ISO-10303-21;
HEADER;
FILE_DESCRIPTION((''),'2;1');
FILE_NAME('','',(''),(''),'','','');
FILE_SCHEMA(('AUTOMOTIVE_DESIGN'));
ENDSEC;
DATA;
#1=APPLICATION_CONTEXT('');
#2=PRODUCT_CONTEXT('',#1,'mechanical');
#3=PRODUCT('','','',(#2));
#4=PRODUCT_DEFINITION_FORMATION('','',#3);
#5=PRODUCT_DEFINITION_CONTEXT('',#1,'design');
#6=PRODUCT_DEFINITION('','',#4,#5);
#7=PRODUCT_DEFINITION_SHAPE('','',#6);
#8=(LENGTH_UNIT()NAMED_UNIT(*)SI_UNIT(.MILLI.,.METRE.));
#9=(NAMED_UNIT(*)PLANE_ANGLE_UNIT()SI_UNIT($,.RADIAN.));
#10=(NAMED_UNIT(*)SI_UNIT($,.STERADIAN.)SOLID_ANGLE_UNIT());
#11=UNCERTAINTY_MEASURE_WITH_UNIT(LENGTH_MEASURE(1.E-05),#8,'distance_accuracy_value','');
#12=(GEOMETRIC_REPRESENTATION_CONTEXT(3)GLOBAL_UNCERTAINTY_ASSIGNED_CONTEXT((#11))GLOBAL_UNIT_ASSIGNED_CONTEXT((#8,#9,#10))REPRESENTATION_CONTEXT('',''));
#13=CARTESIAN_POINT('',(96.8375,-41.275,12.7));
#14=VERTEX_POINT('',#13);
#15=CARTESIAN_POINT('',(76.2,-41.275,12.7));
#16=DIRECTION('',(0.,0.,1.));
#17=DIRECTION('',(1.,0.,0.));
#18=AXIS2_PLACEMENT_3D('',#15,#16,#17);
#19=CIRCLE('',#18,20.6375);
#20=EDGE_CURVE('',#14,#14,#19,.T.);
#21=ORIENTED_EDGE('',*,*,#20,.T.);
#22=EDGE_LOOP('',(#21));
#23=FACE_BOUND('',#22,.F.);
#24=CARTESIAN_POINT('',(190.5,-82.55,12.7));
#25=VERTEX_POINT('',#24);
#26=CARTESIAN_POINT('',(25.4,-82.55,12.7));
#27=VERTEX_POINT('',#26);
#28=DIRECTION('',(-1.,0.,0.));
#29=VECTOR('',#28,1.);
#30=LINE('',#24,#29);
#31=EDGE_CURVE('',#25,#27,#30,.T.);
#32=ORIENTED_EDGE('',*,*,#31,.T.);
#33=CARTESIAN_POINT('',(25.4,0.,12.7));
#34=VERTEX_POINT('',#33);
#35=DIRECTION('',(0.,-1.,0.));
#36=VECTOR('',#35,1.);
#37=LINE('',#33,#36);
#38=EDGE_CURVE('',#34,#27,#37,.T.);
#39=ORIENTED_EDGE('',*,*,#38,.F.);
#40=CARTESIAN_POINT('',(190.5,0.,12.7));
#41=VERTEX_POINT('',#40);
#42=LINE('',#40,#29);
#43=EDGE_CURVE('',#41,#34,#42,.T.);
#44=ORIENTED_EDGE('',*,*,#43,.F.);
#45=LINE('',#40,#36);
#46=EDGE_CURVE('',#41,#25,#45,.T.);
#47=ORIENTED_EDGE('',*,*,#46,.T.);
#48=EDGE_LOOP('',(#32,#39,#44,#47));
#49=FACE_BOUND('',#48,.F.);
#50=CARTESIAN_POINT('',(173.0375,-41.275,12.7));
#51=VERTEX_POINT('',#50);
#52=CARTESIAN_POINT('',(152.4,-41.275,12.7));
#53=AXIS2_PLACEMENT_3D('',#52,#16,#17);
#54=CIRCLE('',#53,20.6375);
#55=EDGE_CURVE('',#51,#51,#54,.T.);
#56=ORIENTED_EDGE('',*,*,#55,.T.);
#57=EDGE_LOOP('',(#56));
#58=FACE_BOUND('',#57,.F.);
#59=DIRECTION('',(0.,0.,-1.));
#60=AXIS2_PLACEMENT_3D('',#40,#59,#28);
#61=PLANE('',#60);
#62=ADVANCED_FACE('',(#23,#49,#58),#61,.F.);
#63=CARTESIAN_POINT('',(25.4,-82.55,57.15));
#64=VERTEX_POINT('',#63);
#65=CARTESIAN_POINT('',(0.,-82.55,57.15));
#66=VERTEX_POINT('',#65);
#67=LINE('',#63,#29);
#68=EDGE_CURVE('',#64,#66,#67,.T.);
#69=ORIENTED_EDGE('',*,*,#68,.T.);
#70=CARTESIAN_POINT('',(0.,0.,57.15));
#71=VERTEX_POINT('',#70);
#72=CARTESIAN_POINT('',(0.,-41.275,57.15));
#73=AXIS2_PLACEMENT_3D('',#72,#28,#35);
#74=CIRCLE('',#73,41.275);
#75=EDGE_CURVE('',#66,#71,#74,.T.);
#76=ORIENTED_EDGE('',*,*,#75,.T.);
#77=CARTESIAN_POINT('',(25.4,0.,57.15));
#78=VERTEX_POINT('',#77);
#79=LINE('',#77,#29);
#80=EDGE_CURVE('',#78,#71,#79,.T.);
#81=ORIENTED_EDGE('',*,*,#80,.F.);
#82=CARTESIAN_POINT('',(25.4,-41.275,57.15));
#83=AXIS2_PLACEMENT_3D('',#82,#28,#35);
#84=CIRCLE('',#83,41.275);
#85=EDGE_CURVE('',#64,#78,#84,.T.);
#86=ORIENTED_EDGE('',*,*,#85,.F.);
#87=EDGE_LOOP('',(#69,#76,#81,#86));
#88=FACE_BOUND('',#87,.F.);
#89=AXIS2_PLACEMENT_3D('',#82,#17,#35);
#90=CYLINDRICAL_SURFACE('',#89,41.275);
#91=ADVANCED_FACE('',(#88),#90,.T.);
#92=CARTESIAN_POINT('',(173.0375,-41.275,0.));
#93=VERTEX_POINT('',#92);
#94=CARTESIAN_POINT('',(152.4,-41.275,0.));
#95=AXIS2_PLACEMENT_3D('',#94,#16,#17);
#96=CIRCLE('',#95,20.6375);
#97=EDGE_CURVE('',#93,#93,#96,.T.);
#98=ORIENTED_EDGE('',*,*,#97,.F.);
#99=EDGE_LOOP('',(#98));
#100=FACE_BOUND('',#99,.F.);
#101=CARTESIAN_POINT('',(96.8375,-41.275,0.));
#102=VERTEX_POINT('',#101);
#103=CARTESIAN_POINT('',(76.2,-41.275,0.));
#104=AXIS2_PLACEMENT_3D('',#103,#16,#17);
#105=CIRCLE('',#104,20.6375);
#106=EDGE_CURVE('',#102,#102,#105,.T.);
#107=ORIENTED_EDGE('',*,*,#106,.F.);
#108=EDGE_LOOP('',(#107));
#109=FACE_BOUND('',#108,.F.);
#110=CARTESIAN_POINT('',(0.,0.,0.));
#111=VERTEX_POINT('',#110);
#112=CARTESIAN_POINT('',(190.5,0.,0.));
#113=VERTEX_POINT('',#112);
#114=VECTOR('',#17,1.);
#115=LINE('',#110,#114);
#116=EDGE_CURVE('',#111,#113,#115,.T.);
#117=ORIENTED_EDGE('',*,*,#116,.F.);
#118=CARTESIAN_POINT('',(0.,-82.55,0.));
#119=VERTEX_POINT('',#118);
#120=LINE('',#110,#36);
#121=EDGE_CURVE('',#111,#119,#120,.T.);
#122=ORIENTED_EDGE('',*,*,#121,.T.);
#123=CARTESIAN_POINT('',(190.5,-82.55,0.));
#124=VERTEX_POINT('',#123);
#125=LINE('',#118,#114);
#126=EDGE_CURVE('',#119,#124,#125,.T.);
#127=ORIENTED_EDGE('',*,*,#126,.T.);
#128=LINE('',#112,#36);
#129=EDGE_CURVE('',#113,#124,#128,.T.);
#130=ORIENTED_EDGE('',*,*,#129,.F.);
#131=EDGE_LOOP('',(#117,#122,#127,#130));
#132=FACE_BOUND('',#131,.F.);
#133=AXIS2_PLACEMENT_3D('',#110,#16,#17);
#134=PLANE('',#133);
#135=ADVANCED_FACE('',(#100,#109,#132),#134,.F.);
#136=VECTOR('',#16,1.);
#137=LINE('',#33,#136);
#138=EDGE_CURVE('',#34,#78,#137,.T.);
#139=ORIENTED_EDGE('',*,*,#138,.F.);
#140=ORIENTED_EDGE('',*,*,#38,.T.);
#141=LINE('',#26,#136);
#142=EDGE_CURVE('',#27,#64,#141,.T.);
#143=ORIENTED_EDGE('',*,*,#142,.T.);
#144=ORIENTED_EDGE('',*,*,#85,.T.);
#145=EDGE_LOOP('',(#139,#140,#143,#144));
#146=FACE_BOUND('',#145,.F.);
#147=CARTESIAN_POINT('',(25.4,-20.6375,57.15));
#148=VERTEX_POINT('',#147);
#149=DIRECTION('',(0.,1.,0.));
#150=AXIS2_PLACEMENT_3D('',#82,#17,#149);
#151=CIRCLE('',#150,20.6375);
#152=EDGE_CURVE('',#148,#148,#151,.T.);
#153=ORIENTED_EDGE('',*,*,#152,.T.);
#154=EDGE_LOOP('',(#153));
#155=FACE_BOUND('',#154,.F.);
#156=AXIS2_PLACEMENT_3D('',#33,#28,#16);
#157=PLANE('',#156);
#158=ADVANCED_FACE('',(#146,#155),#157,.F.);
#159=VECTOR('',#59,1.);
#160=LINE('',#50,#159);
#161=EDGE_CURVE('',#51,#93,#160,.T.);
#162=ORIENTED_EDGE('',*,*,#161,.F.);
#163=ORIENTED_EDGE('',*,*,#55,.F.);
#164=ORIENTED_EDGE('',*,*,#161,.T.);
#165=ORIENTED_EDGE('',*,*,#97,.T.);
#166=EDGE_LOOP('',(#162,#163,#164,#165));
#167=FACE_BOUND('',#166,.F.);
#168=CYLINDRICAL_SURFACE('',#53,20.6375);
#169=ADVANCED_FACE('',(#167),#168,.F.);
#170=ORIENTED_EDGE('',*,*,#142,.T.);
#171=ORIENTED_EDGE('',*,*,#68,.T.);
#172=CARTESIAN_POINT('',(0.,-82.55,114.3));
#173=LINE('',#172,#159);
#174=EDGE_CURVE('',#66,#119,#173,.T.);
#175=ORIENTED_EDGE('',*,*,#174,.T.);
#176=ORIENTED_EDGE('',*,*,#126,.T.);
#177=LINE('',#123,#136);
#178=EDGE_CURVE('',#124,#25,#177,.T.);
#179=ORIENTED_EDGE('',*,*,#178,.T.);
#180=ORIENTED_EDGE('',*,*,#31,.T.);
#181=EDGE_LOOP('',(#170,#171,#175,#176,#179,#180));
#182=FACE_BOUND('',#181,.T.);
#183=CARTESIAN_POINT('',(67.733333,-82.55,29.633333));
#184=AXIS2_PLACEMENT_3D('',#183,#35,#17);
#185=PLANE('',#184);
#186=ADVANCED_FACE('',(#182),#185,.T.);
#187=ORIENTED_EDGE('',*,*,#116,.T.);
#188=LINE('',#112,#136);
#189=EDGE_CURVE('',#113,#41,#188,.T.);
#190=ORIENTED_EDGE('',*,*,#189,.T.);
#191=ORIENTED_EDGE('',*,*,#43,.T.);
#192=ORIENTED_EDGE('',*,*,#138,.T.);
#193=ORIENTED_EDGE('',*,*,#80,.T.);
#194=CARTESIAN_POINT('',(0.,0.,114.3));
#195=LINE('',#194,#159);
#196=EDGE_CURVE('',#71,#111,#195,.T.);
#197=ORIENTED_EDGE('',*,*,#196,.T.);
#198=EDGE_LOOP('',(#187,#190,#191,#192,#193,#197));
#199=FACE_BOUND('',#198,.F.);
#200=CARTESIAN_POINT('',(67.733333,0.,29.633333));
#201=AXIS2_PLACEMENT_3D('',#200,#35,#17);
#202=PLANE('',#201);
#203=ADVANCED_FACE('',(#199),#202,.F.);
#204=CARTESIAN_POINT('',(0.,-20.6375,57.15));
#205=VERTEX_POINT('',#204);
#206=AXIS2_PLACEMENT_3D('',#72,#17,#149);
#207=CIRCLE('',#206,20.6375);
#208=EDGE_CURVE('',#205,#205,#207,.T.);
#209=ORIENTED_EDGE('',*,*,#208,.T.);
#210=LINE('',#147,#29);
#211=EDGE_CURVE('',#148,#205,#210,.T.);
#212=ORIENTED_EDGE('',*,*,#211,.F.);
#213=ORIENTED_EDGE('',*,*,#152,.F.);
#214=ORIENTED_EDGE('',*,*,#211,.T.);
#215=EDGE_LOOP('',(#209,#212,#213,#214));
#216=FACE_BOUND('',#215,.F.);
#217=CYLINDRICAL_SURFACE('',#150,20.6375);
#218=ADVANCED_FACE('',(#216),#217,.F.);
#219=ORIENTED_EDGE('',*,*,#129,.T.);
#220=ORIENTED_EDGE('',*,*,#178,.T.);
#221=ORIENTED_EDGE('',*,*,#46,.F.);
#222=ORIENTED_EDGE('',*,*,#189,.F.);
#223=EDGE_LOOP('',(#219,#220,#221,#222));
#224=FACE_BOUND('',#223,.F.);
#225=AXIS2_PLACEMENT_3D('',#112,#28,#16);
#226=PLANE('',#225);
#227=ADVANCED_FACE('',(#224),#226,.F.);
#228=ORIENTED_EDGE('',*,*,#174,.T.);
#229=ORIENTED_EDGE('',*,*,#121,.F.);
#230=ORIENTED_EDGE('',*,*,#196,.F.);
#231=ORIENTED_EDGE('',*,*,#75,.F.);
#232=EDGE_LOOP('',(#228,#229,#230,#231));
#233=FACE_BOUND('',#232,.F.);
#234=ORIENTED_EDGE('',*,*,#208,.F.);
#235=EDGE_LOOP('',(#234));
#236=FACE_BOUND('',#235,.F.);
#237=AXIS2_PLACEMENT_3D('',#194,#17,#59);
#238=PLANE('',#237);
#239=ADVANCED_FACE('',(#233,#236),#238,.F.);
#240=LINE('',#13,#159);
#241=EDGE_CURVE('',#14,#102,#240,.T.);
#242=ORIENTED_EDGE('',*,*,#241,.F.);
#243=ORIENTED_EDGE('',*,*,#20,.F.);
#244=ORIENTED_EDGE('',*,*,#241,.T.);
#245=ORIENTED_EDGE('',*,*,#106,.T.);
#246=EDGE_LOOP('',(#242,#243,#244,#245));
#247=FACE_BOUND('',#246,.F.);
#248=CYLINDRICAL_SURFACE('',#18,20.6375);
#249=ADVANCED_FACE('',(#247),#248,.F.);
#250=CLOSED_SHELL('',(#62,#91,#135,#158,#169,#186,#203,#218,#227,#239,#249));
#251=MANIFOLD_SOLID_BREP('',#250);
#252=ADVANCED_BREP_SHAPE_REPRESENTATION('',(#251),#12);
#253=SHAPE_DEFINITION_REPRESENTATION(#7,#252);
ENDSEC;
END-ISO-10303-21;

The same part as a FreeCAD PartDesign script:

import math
import FreeCAD as App
import Part
import Sketcher
from FreeCAD import Vector
Q = App.Units.Quantity

doc = App.newDocument("Part")
body = doc.addObject("PartDesign::Body", "Body")

# Sketch on XZ plane
sketch1 = body.newObject("Sketcher::SketchObject", "Sketch")
sketch1.AttachmentSupport = (doc.getObject("XZ_Plane"), [""])
sketch1.MapMode = "FlatFace"
sketch1.addGeometry([
    Part.LineSegment(Vector(0, 114.3, 0), Vector(0, 0, 0)),  # 0
    Part.LineSegment(Vector(0, 0, 0), Vector(190.5, 0, 0)),  # 1
    Part.LineSegment(Vector(190.5, 0, 0), Vector(190.5, 12.7, 0)),  # 2
    Part.LineSegment(Vector(190.5, 12.7, 0), Vector(25.4, 12.7, 0)),  # 3
    Part.LineSegment(Vector(25.4, 12.7, 0), Vector(25.4, 114.3, 0)),  # 4
    Part.LineSegment(Vector(25.4, 114.3, 0), Vector(0, 114.3, 0)),  # 5
], False)
sketch1.addConstraint([
    Sketcher.Constraint("Coincident", 0, 2, 1, 1),
    Sketcher.Constraint("Coincident", 1, 2, 2, 1),
    Sketcher.Constraint("Coincident", 2, 2, 3, 1),
    Sketcher.Constraint("Coincident", 3, 2, 4, 1),
    Sketcher.Constraint("Coincident", 4, 2, 5, 1),
    Sketcher.Constraint("Coincident", 5, 2, 0, 1),
    Sketcher.Constraint("Vertical", 0),
    Sketcher.Constraint("Horizontal", 1),
    Sketcher.Constraint("Vertical", 2),
    Sketcher.Constraint("Horizontal", 3),
    Sketcher.Constraint("Vertical", 4),
    Sketcher.Constraint("Horizontal", 5),
    Sketcher.Constraint("Coincident", 0, 2, -1, 1),
    Sketcher.Constraint("DistanceX", 5, 2, 5, 1, Q("1 in")),
    Sketcher.Constraint("DistanceY", 4, 1, 4, 2, Q("4 in")),
    Sketcher.Constraint("DistanceX", 1, 1, 1, 2, Q("7.5 in")),
    Sketcher.Constraint("DistanceY", 0, 2, 0, 1, Q("4.5 in")),
])
pad1 = body.newObject("PartDesign::Pad", "Pad")
pad1.Profile = sketch1
pad1.Length = Q("3.25 in")

# Sketch on YZ plane
sketch2 = body.newObject("Sketcher::SketchObject", "Sketch001")
sketch2.AttachmentSupport = (doc.getObject("YZ_Plane"), [""])
sketch2.MapMode = "FlatFace"
sketch2.AttachmentOffset = App.Placement(Vector(0, 0, 1 * 25.4), App.Rotation())
sketch2.addGeometry([
    Part.ArcOfCircle(Part.Circle(Vector(-41.275, 57.15, 0), Vector(0, 0, 1), 41.275), math.radians(0), math.radians(180)),
    Part.LineSegment(Vector(0, 57.15, 0), Vector(0, 114.3, 0)),
    Part.LineSegment(Vector(0, 114.3, 0), Vector(-82.55, 114.3, 0)),
    Part.LineSegment(Vector(-82.55, 114.3, 0), Vector(-82.55, 57.15, 0)),
], False)
sketch2.addConstraint([
    Sketcher.Constraint("Tangent", 0, 1, 1, 1),
    Sketcher.Constraint("Coincident", 1, 2, 2, 1),
    Sketcher.Constraint("Coincident", 2, 2, 3, 1),
    Sketcher.Constraint("Tangent", 3, 2, 0, 2),
    Sketcher.Constraint("Vertical", 1),
    Sketcher.Constraint("Horizontal", 2),
    Sketcher.Constraint("Vertical", 3),
    Sketcher.Constraint("PointOnObject", 0, 1, -2),
    Sketcher.Constraint("Radius", 0, Q("1.625 in")),
    Sketcher.Constraint("DistanceY", 1, 1, 1, 2, Q("2.25 in")),
    Sketcher.Constraint("DistanceY", -1, 1, 1, 2, Q("4.5 in")),
])
pocket1 = body.newObject("PartDesign::Pocket", "Pocket")
pocket1.Profile = sketch2
pocket1.Length = Q("1 in")

# Sketch on YZ plane
sketch3 = body.newObject("Sketcher::SketchObject", "Sketch002")
sketch3.AttachmentSupport = (doc.getObject("YZ_Plane"), [""])
sketch3.MapMode = "FlatFace"
sketch3.AttachmentOffset = App.Placement(Vector(0, 0, 1 * 25.4), App.Rotation())
sketch3.addGeometry(Part.Circle(Vector(-41.275, 57.15, 0), Vector(0, 0, 1), 20.6375), False)
sketch3.addConstraint([
    Sketcher.Constraint("Diameter", 0, Q("1.625 in")),
    Sketcher.Constraint("DistanceY", -1, 1, 0, 3, Q("2.25 in")),
    Sketcher.Constraint("DistanceX", 0, 3, -1, 1, Q("1.625 in")),
])
pocket2 = body.newObject("PartDesign::Pocket", "Pocket001")
pocket2.Profile = sketch3
pocket2.Type = "ThroughAll"

# Sketch on XY plane
sketch4 = body.newObject("Sketcher::SketchObject", "Sketch003")
sketch4.AttachmentSupport = (doc.getObject("XY_Plane"), [""])
sketch4.MapMode = "FlatFace"
sketch4.AttachmentOffset = App.Placement(Vector(0, 0, 0.5 * 25.4), App.Rotation())
sketch4.addGeometry([
    Part.Circle(Vector(76.2, -41.275, 0), Vector(0, 0, 1), 20.6375),
    Part.Circle(Vector(152.4, -41.275, 0), Vector(0, 0, 1), 20.6375),
], False)
sketch4.addConstraint([
    Sketcher.Constraint("Equal", 0, 1),
    Sketcher.Constraint("Horizontal", 0, 3, 1, 3),
    Sketcher.Constraint("Diameter", 0, Q("1.625 in")),
    Sketcher.Constraint("DistanceX", -1, 1, 0, 3, Q("3 in")),
    Sketcher.Constraint("DistanceX", -1, 1, 1, 3, Q("6 in")),
    Sketcher.Constraint("DistanceY", 0, 3, -1, 1, Q("1.625 in")),
])
pocket3 = body.newObject("PartDesign::Pocket", "Pocket002")
pocket3.Profile = sketch4
pocket3.Length = Q("1 in")

doc.recompute()
